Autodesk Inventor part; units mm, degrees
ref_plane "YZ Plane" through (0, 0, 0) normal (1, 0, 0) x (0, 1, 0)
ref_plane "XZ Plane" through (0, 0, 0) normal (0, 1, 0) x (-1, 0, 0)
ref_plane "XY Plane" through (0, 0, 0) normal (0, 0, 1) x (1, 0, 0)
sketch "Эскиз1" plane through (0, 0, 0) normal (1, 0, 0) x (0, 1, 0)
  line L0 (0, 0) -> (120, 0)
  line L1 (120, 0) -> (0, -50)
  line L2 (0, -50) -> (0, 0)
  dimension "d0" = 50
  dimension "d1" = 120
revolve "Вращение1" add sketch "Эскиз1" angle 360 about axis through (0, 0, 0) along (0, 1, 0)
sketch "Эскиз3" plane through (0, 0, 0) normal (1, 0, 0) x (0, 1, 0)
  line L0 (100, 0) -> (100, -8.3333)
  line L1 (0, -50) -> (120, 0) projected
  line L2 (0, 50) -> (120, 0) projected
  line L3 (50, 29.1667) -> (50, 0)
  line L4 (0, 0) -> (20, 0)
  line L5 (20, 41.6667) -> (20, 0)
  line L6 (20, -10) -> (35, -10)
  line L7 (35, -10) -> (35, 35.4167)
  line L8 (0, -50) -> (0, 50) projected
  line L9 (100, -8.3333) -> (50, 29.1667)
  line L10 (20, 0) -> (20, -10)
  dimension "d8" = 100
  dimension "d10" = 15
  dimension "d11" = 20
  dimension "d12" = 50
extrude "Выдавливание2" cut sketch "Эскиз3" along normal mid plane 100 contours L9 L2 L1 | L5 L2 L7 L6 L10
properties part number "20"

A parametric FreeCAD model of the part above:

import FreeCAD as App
import Part
import Sketcher
Q = App.Units.Quantity

doc = App.newDocument("Part")
body = doc.addObject("PartDesign::Body", "Body")

sketch1 = body.newObject("Sketcher::SketchObject", "Sketch")
sketch1.AttachmentSupport = (doc.getObject("YZ_Plane"), [""])
sketch1.MapMode = "FlatFace"
sketch1.addGeometry([
    Part.LineSegment(App.Vector(120, 0, 0), App.Vector(0, 0, 0)),
    Part.LineSegment(App.Vector(0, 0, 0), App.Vector(0, -50, 0)),
    Part.LineSegment(App.Vector(0, -50, 0), App.Vector(120, 0, 0)),
], False)
sketch1.addConstraint([
    Sketcher.Constraint("Coincident", 0, 2, 1, 1),
    Sketcher.Constraint("Coincident", 1, 2, 2, 1),
    Sketcher.Constraint("Coincident", 2, 2, 0, 1),
    Sketcher.Constraint("Horizontal", 0),
    Sketcher.Constraint("Vertical", 1),
    Sketcher.Constraint("Coincident", 0, 2, -1, 1),
    Sketcher.Constraint("DistanceX", 0, 2, 0, 1, Q("120 mm")),
    Sketcher.Constraint("DistanceY", 1, 2, 1, 1, Q("50 mm")),
])
revolution = body.newObject("PartDesign::Revolution", "Revolution")
revolution.Profile = sketch1
revolution.ReferenceAxis = (sketch1, ["H_Axis"])
revolution.Angle = 360

sketch2 = body.newObject("Sketcher::SketchObject", "Sketch001")
sketch2.AttachmentSupport = (doc.getObject("YZ_Plane"), [""])
sketch2.MapMode = "FlatFace"
sketch2.addGeometry([
    Part.LineSegment(App.Vector(50, 29.1667, 0), App.Vector(100, -8.3333, 0)),
    Part.LineSegment(App.Vector(100.000012, -8.333328, 0), App.Vector(120, 0, 0)),
    Part.LineSegment(App.Vector(120, 0, 0), App.Vector(49.999988, 29.166672, 0)),
    Part.LineSegment(App.Vector(20, 41.6667, 0), App.Vector(20, -10, 0)),
    Part.LineSegment(App.Vector(20, -10, 0), App.Vector(35, -10, 0)),
    Part.LineSegment(App.Vector(35, -10, 0), App.Vector(35, 35.4167, 0)),
    Part.LineSegment(App.Vector(34.999988, 35.416672, 0), App.Vector(19.999988, 41.666672, 0)),
], False)
sketch2.addConstraint([
    Sketcher.Constraint("Coincident", 0, 2, 1, 1),
    Sketcher.Constraint("Coincident", 1, 2, 2, 1),
    Sketcher.Constraint("Coincident", 2, 2, 0, 1),
    Sketcher.Constraint("Coincident", 3, 2, 4, 1),
    Sketcher.Constraint("Coincident", 4, 2, 5, 1),
    Sketcher.Constraint("Coincident", 5, 2, 6, 1),
    Sketcher.Constraint("Coincident", 6, 2, 3, 1),
    Sketcher.Constraint("Vertical", 3),
    Sketcher.Constraint("Horizontal", 4),
    Sketcher.Constraint("Vertical", 5),
    Sketcher.Constraint("PointOnObject", 1, 2, -1),
    Sketcher.Constraint("Parallel", 2, 6),
    Sketcher.Constraint("DistanceX", 4, 1, 4, 2, Q("15 mm")),
    Sketcher.Constraint("DistanceX", -1, 1, 0, 2, Q("100 mm")),
    Sketcher.Constraint("DistanceX", -1, 1, 2, 2, Q("50 mm")),
    Sketcher.Constraint("DistanceX", -1, 1, 3, 2, Q("20 mm")),
    Sketcher.Constraint("DistanceX", 0, 2, 1, 2, Q("20 mm")),
    Sketcher.Constraint("DistanceY", 0, 2, 6, 2, Q("50 mm")),
    Sketcher.Constraint("DistanceY", 3, 2, -1, 1, Q("10 mm")),
    Sketcher.Constraint("Distance", 0, Q("62.5 mm")),
    Sketcher.Constraint("Angle", 1, Q("22.6199 deg")),
])
pocket1 = body.newObject("PartDesign::Pocket", "Pocket")
pocket1.Profile = sketch2
pocket1.Length = 100
pocket1.Midplane = True

doc.recompute()
